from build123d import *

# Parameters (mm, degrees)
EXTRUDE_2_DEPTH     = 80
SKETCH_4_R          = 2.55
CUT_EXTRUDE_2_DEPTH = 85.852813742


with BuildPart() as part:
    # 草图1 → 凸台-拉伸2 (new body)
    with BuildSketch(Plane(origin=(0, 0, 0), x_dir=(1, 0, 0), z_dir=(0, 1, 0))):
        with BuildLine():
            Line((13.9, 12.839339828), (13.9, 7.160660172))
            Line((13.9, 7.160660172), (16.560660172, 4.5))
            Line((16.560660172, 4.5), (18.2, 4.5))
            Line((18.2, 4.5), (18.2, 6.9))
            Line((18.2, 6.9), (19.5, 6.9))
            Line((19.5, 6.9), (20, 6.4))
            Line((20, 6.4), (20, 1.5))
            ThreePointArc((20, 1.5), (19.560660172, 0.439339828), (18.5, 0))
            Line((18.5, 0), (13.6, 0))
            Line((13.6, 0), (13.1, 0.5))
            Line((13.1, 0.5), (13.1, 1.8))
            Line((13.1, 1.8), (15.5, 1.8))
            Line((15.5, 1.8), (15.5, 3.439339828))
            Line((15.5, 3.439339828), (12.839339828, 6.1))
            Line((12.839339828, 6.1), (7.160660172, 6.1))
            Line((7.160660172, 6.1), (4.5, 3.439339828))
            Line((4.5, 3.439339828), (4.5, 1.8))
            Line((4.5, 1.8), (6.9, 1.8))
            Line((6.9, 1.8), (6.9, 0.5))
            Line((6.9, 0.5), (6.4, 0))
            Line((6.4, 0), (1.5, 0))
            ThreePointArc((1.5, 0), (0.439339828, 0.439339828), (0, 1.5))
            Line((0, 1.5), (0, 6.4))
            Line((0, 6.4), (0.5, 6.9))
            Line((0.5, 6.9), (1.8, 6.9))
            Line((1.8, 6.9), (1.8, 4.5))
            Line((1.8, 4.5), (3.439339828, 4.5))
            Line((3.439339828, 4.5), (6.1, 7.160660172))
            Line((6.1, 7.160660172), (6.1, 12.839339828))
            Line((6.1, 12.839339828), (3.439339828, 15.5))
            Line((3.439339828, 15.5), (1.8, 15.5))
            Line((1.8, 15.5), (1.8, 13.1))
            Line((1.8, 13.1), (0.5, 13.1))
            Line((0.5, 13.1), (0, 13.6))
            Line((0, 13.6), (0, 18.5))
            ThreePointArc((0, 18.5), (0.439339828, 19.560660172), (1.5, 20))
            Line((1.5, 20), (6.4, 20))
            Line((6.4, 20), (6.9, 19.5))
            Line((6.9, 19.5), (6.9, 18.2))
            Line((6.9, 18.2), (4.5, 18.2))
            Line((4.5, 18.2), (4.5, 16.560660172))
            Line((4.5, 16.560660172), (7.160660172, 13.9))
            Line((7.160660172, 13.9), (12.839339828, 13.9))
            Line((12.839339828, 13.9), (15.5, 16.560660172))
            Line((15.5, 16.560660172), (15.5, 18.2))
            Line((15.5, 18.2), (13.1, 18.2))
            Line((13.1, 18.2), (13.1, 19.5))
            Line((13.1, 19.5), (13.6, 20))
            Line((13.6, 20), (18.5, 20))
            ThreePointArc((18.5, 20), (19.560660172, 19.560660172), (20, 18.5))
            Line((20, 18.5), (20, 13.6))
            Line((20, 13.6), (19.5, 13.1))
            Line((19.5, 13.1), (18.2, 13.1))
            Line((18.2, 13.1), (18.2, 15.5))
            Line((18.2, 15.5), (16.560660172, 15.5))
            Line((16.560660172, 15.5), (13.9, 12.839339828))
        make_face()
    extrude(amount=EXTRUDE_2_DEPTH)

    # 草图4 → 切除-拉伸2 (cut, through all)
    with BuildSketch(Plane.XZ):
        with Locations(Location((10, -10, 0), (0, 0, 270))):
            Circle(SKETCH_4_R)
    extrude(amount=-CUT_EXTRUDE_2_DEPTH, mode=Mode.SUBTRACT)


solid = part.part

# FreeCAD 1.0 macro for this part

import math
import FreeCAD as App
import Part
import Sketcher

V = App.Vector
Q = App.Units.Quantity

doc = App.newDocument("Part")
body = doc.addObject("PartDesign::Body", "Body")

# Sketch on XZ plane
sketch1 = body.newObject("Sketcher::SketchObject", "Sketch")
sketch1.AttachmentSupport = (doc.getObject("XZ_Plane"), [""])
sketch1.MapMode = "FlatFace"
sketch1.addGeometry([
    Part.LineSegment(V(13.9, -7.16066, 0), V(13.9, -12.83934, 0)),  # 0
    Part.LineSegment(V(13.9, -12.83934, 0), V(16.56066, -15.5, 0)),  # 1
    Part.LineSegment(V(16.56066, -15.5, 0), V(18.2, -15.5, 0)),  # 2
    Part.LineSegment(V(18.2, -15.5, 0), V(18.2, -13.1, 0)),  # 3
    Part.LineSegment(V(18.2, -13.1, 0), V(19.5, -13.1, 0)),  # 4
    Part.LineSegment(V(19.5, -13.1, 0), V(20, -13.6, 0)),  # 5
    Part.LineSegment(V(20, -13.6, 0), V(20, -18.5, 0)),  # 6
    Part.ArcOfCircle(Part.Circle(V(18.5, -18.5, 0), V(0, 0, 1), 1.5), math.radians(-90), math.radians(0)),  # 7
    Part.LineSegment(V(18.5, -20, 0), V(13.6, -20, 0)),  # 8
    Part.LineSegment(V(13.6, -20, 0), V(13.1, -19.5, 0)),  # 9
    Part.LineSegment(V(13.1, -19.5, 0), V(13.1, -18.2, 0)),  # 10
    Part.LineSegment(V(13.1, -18.2, 0), V(15.5, -18.2, 0)),  # 11
    Part.LineSegment(V(15.5, -18.2, 0), V(15.5, -16.56066, 0)),  # 12
    Part.LineSegment(V(15.5, -16.56066, 0), V(12.83934, -13.9, 0)),  # 13
    Part.LineSegment(V(12.83934, -13.9, 0), V(7.16066, -13.9, 0)),  # 14
    Part.LineSegment(V(7.16066, -13.9, 0), V(4.5, -16.56066, 0)),  # 15
    Part.LineSegment(V(4.5, -16.56066, 0), V(4.5, -18.2, 0)),  # 16
    Part.LineSegment(V(4.5, -18.2, 0), V(6.9, -18.2, 0)),  # 17
    Part.LineSegment(V(6.9, -18.2, 0), V(6.9, -19.5, 0)),  # 18
    Part.LineSegment(V(6.9, -19.5, 0), V(6.4, -20, 0)),  # 19
    Part.LineSegment(V(6.4, -20, 0), V(1.5, -20, 0)),  # 20
    Part.ArcOfCircle(Part.Circle(V(1.5, -18.5, 0), V(0, 0, 1), 1.5), math.radians(180), math.radians(270)),  # 21
    Part.LineSegment(V(0, -18.5, 0), V(0, -13.6, 0)),  # 22
    Part.LineSegment(V(0, -13.6, 0), V(0.5, -13.1, 0)),  # 23
    Part.LineSegment(V(0.5, -13.1, 0), V(1.8, -13.1, 0)),  # 24
    Part.LineSegment(V(1.8, -13.1, 0), V(1.8, -15.5, 0)),  # 25
    Part.LineSegment(V(1.8, -15.5, 0), V(3.43934, -15.5, 0)),  # 26
    Part.LineSegment(V(3.43934, -15.5, 0), V(6.1, -12.83934, 0)),  # 27
    Part.LineSegment(V(6.1, -12.83934, 0), V(6.1, -7.16066, 0)),  # 28
    Part.LineSegment(V(6.1, -7.16066, 0), V(3.43934, -4.5, 0)),  # 29
    Part.LineSegment(V(3.43934, -4.5, 0), V(1.8, -4.5, 0)),  # 30
    Part.LineSegment(V(1.8, -4.5, 0), V(1.8, -6.9, 0)),  # 31
    Part.LineSegment(V(1.8, -6.9, 0), V(0.5, -6.9, 0)),  # 32
    Part.LineSegment(V(0.5, -6.9, 0), V(0, -6.4, 0)),  # 33
    Part.LineSegment(V(0, -6.4, 0), V(0, -1.5, 0)),  # 34
    Part.ArcOfCircle(Part.Circle(V(1.5, -1.5, 0), V(0, 0, 1), 1.5), math.radians(90), math.radians(180)),  # 35
    Part.LineSegment(V(1.5, 0, 0), V(6.4, 0, 0)),  # 36
    Part.LineSegment(V(6.4, 0, 0), V(6.9, -0.5, 0)),  # 37
    Part.LineSegment(V(6.9, -0.5, 0), V(6.9, -1.8, 0)),  # 38
    Part.LineSegment(V(6.9, -1.8, 0), V(4.5, -1.8, 0)),  # 39
    Part.LineSegment(V(4.5, -1.8, 0), V(4.5, -3.43934, 0)),  # 40
    Part.LineSegment(V(4.5, -3.43934, 0), V(7.16066, -6.1, 0)),  # 41
    Part.LineSegment(V(7.16066, -6.1, 0), V(12.83934, -6.1, 0)),  # 42
    Part.LineSegment(V(12.83934, -6.1, 0), V(15.5, -3.43934, 0)),  # 43
    Part.LineSegment(V(15.5, -3.43934, 0), V(15.5, -1.8, 0)),  # 44
    Part.LineSegment(V(15.5, -1.8, 0), V(13.1, -1.8, 0)),  # 45
    Part.LineSegment(V(13.1, -1.8, 0), V(13.1, -0.5, 0)),  # 46
    Part.LineSegment(V(13.1, -0.5, 0), V(13.6, 0, 0)),  # 47
    Part.LineSegment(V(13.6, 0, 0), V(18.5, 0, 0)),  # 48
    Part.ArcOfCircle(Part.Circle(V(18.5, -1.5, 0), V(0, 0, 1), 1.5), math.radians(0), math.radians(90)),  # 49
    Part.LineSegment(V(20, -1.5, 0), V(20, -6.4, 0)),  # 50
    Part.LineSegment(V(20, -6.4, 0), V(19.5, -6.9, 0)),  # 51
    Part.LineSegment(V(19.5, -6.9, 0), V(18.2, -6.9, 0)),  # 52
    Part.LineSegment(V(18.2, -6.9, 0), V(18.2, -4.5, 0)),  # 53
    Part.LineSegment(V(18.2, -4.5, 0), V(16.56066, -4.5, 0)),  # 54
    Part.LineSegment(V(16.56066, -4.5, 0), V(13.9, -7.16066, 0)),  # 55
], False)
sketch1.addConstraint([
    Sketcher.Constraint("Coincident", 0, 2, 1, 1),
    Sketcher.Constraint("Coincident", 1, 2, 2, 1),
    Sketcher.Constraint("Coincident", 2, 2, 3, 1),
    Sketcher.Constraint("Coincident", 3, 2, 4, 1),
    Sketcher.Constraint("Coincident", 4, 2, 5, 1),
    Sketcher.Constraint("Coincident", 5, 2, 6, 1),
    Sketcher.Constraint("Tangent", 6, 2, 7, 2),
    Sketcher.Constraint("Tangent", 7, 1, 8, 1),
    Sketcher.Constraint("Coincident", 8, 2, 9, 1),
    Sketcher.Constraint("Coincident", 9, 2, 10, 1),
    Sketcher.Constraint("Coincident", 10, 2, 11, 1),
    Sketcher.Constraint("Coincident", 11, 2, 12, 1),
    Sketcher.Constraint("Coincident", 12, 2, 13, 1),
    Sketcher.Constraint("Coincident", 13, 2, 14, 1),
    Sketcher.Constraint("Coincident", 14, 2, 15, 1),
    Sketcher.Constraint("Coincident", 15, 2, 16, 1),
    Sketcher.Constraint("Coincident", 16, 2, 17, 1),
    Sketcher.Constraint("Coincident", 17, 2, 18, 1),
    Sketcher.Constraint("Coincident", 18, 2, 19, 1),
    Sketcher.Constraint("Coincident", 19, 2, 20, 1),
    Sketcher.Constraint("Tangent", 20, 2, 21, 2),
    Sketcher.Constraint("Tangent", 21, 1, 22, 1),
    Sketcher.Constraint("Coincident", 22, 2, 23, 1),
    Sketcher.Constraint("Coincident", 23, 2, 24, 1),
    Sketcher.Constraint("Coincident", 24, 2, 25, 1),
    Sketcher.Constraint("Coincident", 25, 2, 26, 1),
    Sketcher.Constraint("Coincident", 26, 2, 27, 1),
    Sketcher.Constraint("Coincident", 27, 2, 28, 1),
    Sketcher.Constraint("Coincident", 28, 2, 29, 1),
    Sketcher.Constraint("Coincident", 29, 2, 30, 1),
    Sketcher.Constraint("Coincident", 30, 2, 31, 1),
    Sketcher.Constraint("Coincident", 31, 2, 32, 1),
    Sketcher.Constraint("Coincident", 32, 2, 33, 1),
    Sketcher.Constraint("Coincident", 33, 2, 34, 1),
    Sketcher.Constraint("Tangent", 34, 2, 35, 2),
    Sketcher.Constraint("Tangent", 35, 1, 36, 1),
    Sketcher.Constraint("Coincident", 36, 2, 37, 1),
    Sketcher.Constraint("Coincident", 37, 2, 38, 1),
    Sketcher.Constraint("Coincident", 38, 2, 39, 1),
    Sketcher.Constraint("Coincident", 39, 2, 40, 1),
    Sketcher.Constraint("Coincident", 40, 2, 41, 1),
    Sketcher.Constraint("Coincident", 41, 2, 42, 1),
    Sketcher.Constraint("Coincident", 42, 2, 43, 1),
    Sketcher.Constraint("Coincident", 43, 2, 44, 1),
    Sketcher.Constraint("Coincident", 44, 2, 45, 1),
    Sketcher.Constraint("Coincident", 45, 2, 46, 1),
    Sketcher.Constraint("Coincident", 46, 2, 47, 1),
    Sketcher.Constraint("Coincident", 47, 2, 48, 1),
    Sketcher.Constraint("Tangent", 48, 2, 49, 2),
    Sketcher.Constraint("Tangent", 49, 1, 50, 1),
    Sketcher.Constraint("Coincident", 50, 2, 51, 1),
    Sketcher.Constraint("Coincident", 51, 2, 52, 1),
    Sketcher.Constraint("Coincident", 52, 2, 53, 1),
    Sketcher.Constraint("Coincident", 53, 2, 54, 1),
    Sketcher.Constraint("Coincident", 54, 2, 55, 1),
    Sketcher.Constraint("Coincident", 55, 2, 0, 1),
    Sketcher.Constraint("Vertical", 0),
    Sketcher.Constraint("Horizontal", 2),
    Sketcher.Constraint("Vertical", 3),
    Sketcher.Constraint("Horizontal", 4),
    Sketcher.Constraint("Vertical", 6),
    Sketcher.Constraint("Horizontal", 8),
    Sketcher.Constraint("Vertical", 10),
    Sketcher.Constraint("Horizontal", 11),
    Sketcher.Constraint("Vertical", 12),
    Sketcher.Constraint("Horizontal", 14),
    Sketcher.Constraint("Vertical", 16),
    Sketcher.Constraint("Horizontal", 17),
    Sketcher.Constraint("Vertical", 18),
    Sketcher.Constraint("Horizontal", 20),
    Sketcher.Constraint("Vertical", 22),
    Sketcher.Constraint("Horizontal", 24),
    Sketcher.Constraint("Vertical", 25),
    Sketcher.Constraint("Horizontal", 26),
    Sketcher.Constraint("Vertical", 28),
    Sketcher.Constraint("Horizontal", 30),
    Sketcher.Constraint("Vertical", 31),
    Sketcher.Constraint("Horizontal", 32),
    Sketcher.Constraint("Vertical", 34),
    Sketcher.Constraint("Horizontal", 36),
    Sketcher.Constraint("Vertical", 38),
    Sketcher.Constraint("Horizontal", 39),
    Sketcher.Constraint("Vertical", 40),
    Sketcher.Constraint("Horizontal", 42),
    Sketcher.Constraint("Vertical", 44),
    Sketcher.Constraint("Horizontal", 45),
    Sketcher.Constraint("Vertical", 46),
    Sketcher.Constraint("Horizontal", 48),
    Sketcher.Constraint("Vertical", 50),
    Sketcher.Constraint("Horizontal", 52),
    Sketcher.Constraint("Vertical", 53),
    Sketcher.Constraint("Horizontal", 54),
    Sketcher.Constraint("Equal", 7, 21),
    Sketcher.Constraint("Equal", 21, 35),
    Sketcher.Constraint("Equal", 35, 49),
    Sketcher.Constraint("PointOnObject", 21, 1, -2),
    Sketcher.Constraint("PointOnObject", 33, 2, -2),
    Sketcher.Constraint("PointOnObject", 35, 1, -1),
    Sketcher.Constraint("PointOnObject", 47, 2, -1),
    Sketcher.Constraint("Parallel", 1, 5),
    Sketcher.Constraint("Parallel", 5, 9),
    Sketcher.Constraint("Parallel", 9, 13),
    Sketcher.Constraint("Perpendicular", 13, 15),
    Sketcher.Constraint("Parallel", 15, 19),
    Sketcher.Constraint("Parallel", 19, 23),
    Sketcher.Constraint("Parallel", 23, 27),
    Sketcher.Constraint("Perpendicular", 27, 29),
    Sketcher.Constraint("Parallel", 29, 33),
    Sketcher.Constraint("Parallel", 33, 37),
    Sketcher.Constraint("Parallel", 37, 41),
    Sketcher.Constraint("Perpendicular", 41, 43),
    Sketcher.Constraint("Parallel", 43, 47),
    Sketcher.Constraint("Parallel", 47, 51),
    Sketcher.Constraint("Parallel", 51, 55),
    Sketcher.Constraint("Horizontal", 7, 3, 21, 3),
    Sketcher.Constraint("Horizontal", 12, 2, 15, 2),
    Sketcher.Constraint("Horizontal", 11, 2, 16, 2),
    Sketcher.Constraint("Horizontal", 9, 2, 18, 2),
    Sketcher.Constraint("Horizontal", 5, 2, 22, 2),
    Sketcher.Constraint("Horizontal", 4, 2, 23, 2),
    Sketcher.Constraint("Horizontal", 2, 2, 25, 2),
    Sketcher.Constraint("Horizontal", 0, 2, 27, 2),
    Sketcher.Constraint("Horizontal", 40, 2, 43, 2),
    Sketcher.Constraint("Horizontal", 39, 2, 44, 2),
    Sketcher.Constraint("Horizontal", 37, 2, 46, 2),
    Sketcher.Constraint("Horizontal", 33, 2, 50, 2),
    Sketcher.Constraint("Horizontal", 32, 2, 51, 2),
    Sketcher.Constraint("Horizontal", 30, 2, 53, 2),
    Sketcher.Constraint("Horizontal", 28, 2, 55, 2),
    Sketcher.Constraint("Vertical", 7, 3, 49, 3),
    Sketcher.Constraint("Vertical", 26, 2, 29, 2),
    Sketcher.Constraint("Vertical", 25, 2, 30, 2),
    Sketcher.Constraint("Vertical", 23, 2, 32, 2),
    Sketcher.Constraint("Vertical", 19, 2, 36, 2),
    Sketcher.Constraint("Vertical", 18, 2, 37, 2),
    Sketcher.Constraint("Vertical", 16, 2, 39, 2),
    Sketcher.Constraint("Vertical", 14, 2, 41, 2),
    Sketcher.Constraint("Vertical", 13, 2, 42, 2),
    Sketcher.Constraint("Vertical", 12, 2, 43, 2),
    Sketcher.Constraint("Vertical", 10, 2, 45, 2),
    Sketcher.Constraint("Vertical", 3, 2, 52, 2),
    Sketcher.Constraint("Equal", 11, 17),
    Sketcher.Constraint("Equal", 8, 20),
    Sketcher.Constraint("Equal", 4, 24),
    Sketcher.Constraint("Equal", 2, 26),
    Sketcher.Constraint("Equal", 42, 0),
    Sketcher.Constraint("Equal", 45, 3),
    Sketcher.Constraint("Equal", 48, 6),
    Sketcher.Constraint("Equal", 52, 10),
    Sketcher.Constraint("Equal", 54, 12),
    Sketcher.Constraint("Equal", 25, 31),
    Sketcher.Constraint("Equal", 22, 34),
    Sketcher.Constraint("Equal", 18, 38),
    Sketcher.Constraint("Equal", 16, 40),
    Sketcher.Constraint("Equal", 5, 9),
    Sketcher.Constraint("Equal", 1, 13),
    Sketcher.Constraint("Radius", 7, Q("1.5 mm")),
    Sketcher.Constraint("DistanceX", 4, 1, 4, 2, Q("1.3 mm")),
    Sketcher.Constraint("DistanceX", 8, 2, 8, 1, Q("4.9 mm")),
    Sketcher.Constraint("DistanceX", 11, 1, 11, 2, Q("2.4 mm")),
    Sketcher.Constraint("DistanceX", -1, 1, 5, 2, Q("20 mm")),
    Sketcher.Constraint("DistanceY", 7, 3, 1, 2, Q("3 mm")),
    Sketcher.Constraint("DistanceX", -1, 1, 0, 2, Q("13.9 mm")),
    Sketcher.Constraint("DistanceX", 2, 1, 2, 2, Q("1.63934 mm")),
])
pad1 = body.newObject("PartDesign::Pad", "Pad")
pad1.Profile = sketch1
pad1.Length = 80
pad1.Reversed = True

# Sketch on XZ plane
sketch2 = body.newObject("Sketcher::SketchObject", "Sketch001")
sketch2.AttachmentSupport = (doc.getObject("XZ_Plane"), [""])
sketch2.MapMode = "FlatFace"
sketch2.addGeometry(Part.Circle(V(10, -10, 0), V(0, 0, 1), 2.55), False)
sketch2.addConstraint([
    Sketcher.Constraint("Diameter", 0, Q("5.1 mm")),
    Sketcher.Constraint("DistanceX", -1, 1, 0, 3, Q("10 mm")),
    Sketcher.Constraint("DistanceY", 0, 3, -1, 1, Q("10 mm")),
])
pocket1 = body.newObject("PartDesign::Pocket", "Pocket")
pocket1.Profile = sketch2
pocket1.Type = "ThroughAll"

doc.recompute()
